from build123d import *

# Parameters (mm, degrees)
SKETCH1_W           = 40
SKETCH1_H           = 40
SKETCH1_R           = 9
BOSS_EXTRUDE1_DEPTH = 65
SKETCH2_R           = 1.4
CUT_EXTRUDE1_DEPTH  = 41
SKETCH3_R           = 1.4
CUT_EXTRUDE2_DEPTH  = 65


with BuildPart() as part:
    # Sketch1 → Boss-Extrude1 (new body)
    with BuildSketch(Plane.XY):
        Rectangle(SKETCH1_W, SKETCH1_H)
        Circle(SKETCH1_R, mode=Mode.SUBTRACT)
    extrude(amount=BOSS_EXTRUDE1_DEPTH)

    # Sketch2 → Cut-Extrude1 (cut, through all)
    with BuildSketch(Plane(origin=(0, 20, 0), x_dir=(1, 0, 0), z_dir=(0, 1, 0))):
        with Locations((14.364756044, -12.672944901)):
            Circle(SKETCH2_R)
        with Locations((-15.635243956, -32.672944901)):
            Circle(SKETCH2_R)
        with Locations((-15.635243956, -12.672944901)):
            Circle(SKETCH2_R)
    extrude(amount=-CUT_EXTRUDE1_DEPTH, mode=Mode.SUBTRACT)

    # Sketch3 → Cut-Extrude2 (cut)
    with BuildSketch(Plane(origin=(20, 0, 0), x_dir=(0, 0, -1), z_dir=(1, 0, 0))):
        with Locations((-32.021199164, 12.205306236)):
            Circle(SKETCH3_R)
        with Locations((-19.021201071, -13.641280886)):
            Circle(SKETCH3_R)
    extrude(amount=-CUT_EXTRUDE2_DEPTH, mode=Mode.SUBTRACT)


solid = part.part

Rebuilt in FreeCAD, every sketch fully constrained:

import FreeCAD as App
import Part
import Sketcher

V = App.Vector


def add_polygon(sketch, points):
    """Adds a closed chain of lines whose ends are joined by coincident constraints."""
    first, n = sketch.GeometryCount, len(points)
    for a, b in zip(points, points[1:] + points[:1]):
        sketch.addGeometry(Part.LineSegment(App.Vector(*a, 0), App.Vector(*b, 0)), False)
    for i in range(n):
        sketch.addConstraint(Sketcher.Constraint("Coincident", first + i, 2, first + (i + 1) % n, 1))

doc = App.newDocument("Part")
body = doc.addObject("PartDesign::Body", "Body")

sketch1 = doc.addObject("Sketcher::SketchObject", "Sketch")
body.addObject(sketch1)
sketch1.AttachmentSupport = (doc.XY_Plane, [""])
sketch1.MapMode = "FlatFace"
add_polygon(sketch1, [(-20, 20), (-20, -20), (20, -20), (20, 20)])
sketch1.addGeometry(Part.Circle(V(0, 0, 0), V(0, 0, 1), 9), False)
sketch1.addConstraint(Sketcher.Constraint("Vertical", 0))
sketch1.addConstraint(Sketcher.Constraint("Horizontal", 1))
sketch1.addConstraint(Sketcher.Constraint("Vertical", 2))
sketch1.addConstraint(Sketcher.Constraint("Horizontal", 3))
sketch1.addConstraint(Sketcher.Constraint("Coincident", 4, 3, -1, 1))
sketch1.addConstraint(Sketcher.Constraint("Symmetric", 0, 2, 2, 2, -1, 1))
sketch1.addConstraint(Sketcher.Constraint("Equal", 3, 0))
sketch1.addConstraint(Sketcher.Constraint("Diameter", 4, 18.0))
sketch1.addConstraint(Sketcher.Constraint("DistanceX", 1, 1, 1, 2, 40.0))
pad1 = doc.addObject("PartDesign::Pad", "Pad")
body.addObject(pad1)
pad1.Profile = sketch1
pad1.Length = 65

sketch2 = doc.addObject("Sketcher::SketchObject", "Sketch001")
body.addObject(sketch2)
sketch2.AttachmentSupport = (doc.XZ_Plane, [""])
sketch2.MapMode = "FlatFace"
sketch2.AttachmentOffset = App.Placement(V(0, 0, -20), App.Rotation())
sketch2.addGeometry(Part.Circle(V(14.4, 12.7, 0), V(0, 0, 1), 1.4), False)
sketch2.addGeometry(Part.Circle(V(-15.6, 32.7, 0), V(0, 0, 1), 1.4), False)
sketch2.addGeometry(Part.Circle(V(-15.6, 12.7, 0), V(0, 0, 1), 1.4), False)
sketch2.addConstraint(Sketcher.Constraint("Equal", 0, 1))
sketch2.addConstraint(Sketcher.Constraint("Equal", 1, 2))
sketch2.addConstraint(Sketcher.Constraint("Horizontal", 0, 3, 2, 3))
sketch2.addConstraint(Sketcher.Constraint("Vertical", 1, 3, 2, 3))
sketch2.addConstraint(Sketcher.Constraint("Diameter", 0, 2.8))
sketch2.addConstraint(Sketcher.Constraint("DistanceX", 1, 3, 0, 3, 30.0))
sketch2.addConstraint(Sketcher.Constraint("DistanceY", 0, 3, 1, 3, 20.0))
sketch2.addConstraint(Sketcher.Constraint("DistanceX", -1, 1, 0, 3, 14.364756))
sketch2.addConstraint(Sketcher.Constraint("DistanceY", -1, 1, 0, 3, 12.672945))
pocket1 = doc.addObject("PartDesign::Pocket", "Pocket")
body.addObject(pocket1)
pocket1.Profile = sketch2
pocket1.Type = "ThroughAll"
pocket1.Reversed = True

sketch3 = doc.addObject("Sketcher::SketchObject", "Sketch002")
body.addObject(sketch3)
sketch3.AttachmentSupport = (doc.YZ_Plane, [""])
sketch3.MapMode = "FlatFace"
sketch3.AttachmentOffset = App.Placement(V(0, 0, 20), App.Rotation())
sketch3.addGeometry(Part.Circle(V(12.2, 32, 0), V(0, 0, 1), 1.4), False)
sketch3.addGeometry(Part.Circle(V(-13.6, 19, 0), V(0, 0, 1), 1.4), False)
sketch3.addConstraint(Sketcher.Constraint("Equal", 0, 1))
sketch3.addConstraint(Sketcher.Constraint("Diameter", 0, 2.8))
sketch3.addConstraint(Sketcher.Constraint("DistanceY", 1, 3, 0, 3, 12.999998))
sketch3.addConstraint(Sketcher.Constraint("DistanceY", -1, 1, 0, 3, 32.021199))
sketch3.addConstraint(Sketcher.Constraint("DistanceX", 1, 3, -1, 1, 13.641281))
sketch3.addConstraint(Sketcher.Constraint("DistanceX", -1, 1, 0, 3, 12.205306))
pocket2 = doc.addObject("PartDesign::Pocket", "Pocket001")
body.addObject(pocket2)
pocket2.Profile = sketch3
pocket2.Length = 65

doc.recompute()
